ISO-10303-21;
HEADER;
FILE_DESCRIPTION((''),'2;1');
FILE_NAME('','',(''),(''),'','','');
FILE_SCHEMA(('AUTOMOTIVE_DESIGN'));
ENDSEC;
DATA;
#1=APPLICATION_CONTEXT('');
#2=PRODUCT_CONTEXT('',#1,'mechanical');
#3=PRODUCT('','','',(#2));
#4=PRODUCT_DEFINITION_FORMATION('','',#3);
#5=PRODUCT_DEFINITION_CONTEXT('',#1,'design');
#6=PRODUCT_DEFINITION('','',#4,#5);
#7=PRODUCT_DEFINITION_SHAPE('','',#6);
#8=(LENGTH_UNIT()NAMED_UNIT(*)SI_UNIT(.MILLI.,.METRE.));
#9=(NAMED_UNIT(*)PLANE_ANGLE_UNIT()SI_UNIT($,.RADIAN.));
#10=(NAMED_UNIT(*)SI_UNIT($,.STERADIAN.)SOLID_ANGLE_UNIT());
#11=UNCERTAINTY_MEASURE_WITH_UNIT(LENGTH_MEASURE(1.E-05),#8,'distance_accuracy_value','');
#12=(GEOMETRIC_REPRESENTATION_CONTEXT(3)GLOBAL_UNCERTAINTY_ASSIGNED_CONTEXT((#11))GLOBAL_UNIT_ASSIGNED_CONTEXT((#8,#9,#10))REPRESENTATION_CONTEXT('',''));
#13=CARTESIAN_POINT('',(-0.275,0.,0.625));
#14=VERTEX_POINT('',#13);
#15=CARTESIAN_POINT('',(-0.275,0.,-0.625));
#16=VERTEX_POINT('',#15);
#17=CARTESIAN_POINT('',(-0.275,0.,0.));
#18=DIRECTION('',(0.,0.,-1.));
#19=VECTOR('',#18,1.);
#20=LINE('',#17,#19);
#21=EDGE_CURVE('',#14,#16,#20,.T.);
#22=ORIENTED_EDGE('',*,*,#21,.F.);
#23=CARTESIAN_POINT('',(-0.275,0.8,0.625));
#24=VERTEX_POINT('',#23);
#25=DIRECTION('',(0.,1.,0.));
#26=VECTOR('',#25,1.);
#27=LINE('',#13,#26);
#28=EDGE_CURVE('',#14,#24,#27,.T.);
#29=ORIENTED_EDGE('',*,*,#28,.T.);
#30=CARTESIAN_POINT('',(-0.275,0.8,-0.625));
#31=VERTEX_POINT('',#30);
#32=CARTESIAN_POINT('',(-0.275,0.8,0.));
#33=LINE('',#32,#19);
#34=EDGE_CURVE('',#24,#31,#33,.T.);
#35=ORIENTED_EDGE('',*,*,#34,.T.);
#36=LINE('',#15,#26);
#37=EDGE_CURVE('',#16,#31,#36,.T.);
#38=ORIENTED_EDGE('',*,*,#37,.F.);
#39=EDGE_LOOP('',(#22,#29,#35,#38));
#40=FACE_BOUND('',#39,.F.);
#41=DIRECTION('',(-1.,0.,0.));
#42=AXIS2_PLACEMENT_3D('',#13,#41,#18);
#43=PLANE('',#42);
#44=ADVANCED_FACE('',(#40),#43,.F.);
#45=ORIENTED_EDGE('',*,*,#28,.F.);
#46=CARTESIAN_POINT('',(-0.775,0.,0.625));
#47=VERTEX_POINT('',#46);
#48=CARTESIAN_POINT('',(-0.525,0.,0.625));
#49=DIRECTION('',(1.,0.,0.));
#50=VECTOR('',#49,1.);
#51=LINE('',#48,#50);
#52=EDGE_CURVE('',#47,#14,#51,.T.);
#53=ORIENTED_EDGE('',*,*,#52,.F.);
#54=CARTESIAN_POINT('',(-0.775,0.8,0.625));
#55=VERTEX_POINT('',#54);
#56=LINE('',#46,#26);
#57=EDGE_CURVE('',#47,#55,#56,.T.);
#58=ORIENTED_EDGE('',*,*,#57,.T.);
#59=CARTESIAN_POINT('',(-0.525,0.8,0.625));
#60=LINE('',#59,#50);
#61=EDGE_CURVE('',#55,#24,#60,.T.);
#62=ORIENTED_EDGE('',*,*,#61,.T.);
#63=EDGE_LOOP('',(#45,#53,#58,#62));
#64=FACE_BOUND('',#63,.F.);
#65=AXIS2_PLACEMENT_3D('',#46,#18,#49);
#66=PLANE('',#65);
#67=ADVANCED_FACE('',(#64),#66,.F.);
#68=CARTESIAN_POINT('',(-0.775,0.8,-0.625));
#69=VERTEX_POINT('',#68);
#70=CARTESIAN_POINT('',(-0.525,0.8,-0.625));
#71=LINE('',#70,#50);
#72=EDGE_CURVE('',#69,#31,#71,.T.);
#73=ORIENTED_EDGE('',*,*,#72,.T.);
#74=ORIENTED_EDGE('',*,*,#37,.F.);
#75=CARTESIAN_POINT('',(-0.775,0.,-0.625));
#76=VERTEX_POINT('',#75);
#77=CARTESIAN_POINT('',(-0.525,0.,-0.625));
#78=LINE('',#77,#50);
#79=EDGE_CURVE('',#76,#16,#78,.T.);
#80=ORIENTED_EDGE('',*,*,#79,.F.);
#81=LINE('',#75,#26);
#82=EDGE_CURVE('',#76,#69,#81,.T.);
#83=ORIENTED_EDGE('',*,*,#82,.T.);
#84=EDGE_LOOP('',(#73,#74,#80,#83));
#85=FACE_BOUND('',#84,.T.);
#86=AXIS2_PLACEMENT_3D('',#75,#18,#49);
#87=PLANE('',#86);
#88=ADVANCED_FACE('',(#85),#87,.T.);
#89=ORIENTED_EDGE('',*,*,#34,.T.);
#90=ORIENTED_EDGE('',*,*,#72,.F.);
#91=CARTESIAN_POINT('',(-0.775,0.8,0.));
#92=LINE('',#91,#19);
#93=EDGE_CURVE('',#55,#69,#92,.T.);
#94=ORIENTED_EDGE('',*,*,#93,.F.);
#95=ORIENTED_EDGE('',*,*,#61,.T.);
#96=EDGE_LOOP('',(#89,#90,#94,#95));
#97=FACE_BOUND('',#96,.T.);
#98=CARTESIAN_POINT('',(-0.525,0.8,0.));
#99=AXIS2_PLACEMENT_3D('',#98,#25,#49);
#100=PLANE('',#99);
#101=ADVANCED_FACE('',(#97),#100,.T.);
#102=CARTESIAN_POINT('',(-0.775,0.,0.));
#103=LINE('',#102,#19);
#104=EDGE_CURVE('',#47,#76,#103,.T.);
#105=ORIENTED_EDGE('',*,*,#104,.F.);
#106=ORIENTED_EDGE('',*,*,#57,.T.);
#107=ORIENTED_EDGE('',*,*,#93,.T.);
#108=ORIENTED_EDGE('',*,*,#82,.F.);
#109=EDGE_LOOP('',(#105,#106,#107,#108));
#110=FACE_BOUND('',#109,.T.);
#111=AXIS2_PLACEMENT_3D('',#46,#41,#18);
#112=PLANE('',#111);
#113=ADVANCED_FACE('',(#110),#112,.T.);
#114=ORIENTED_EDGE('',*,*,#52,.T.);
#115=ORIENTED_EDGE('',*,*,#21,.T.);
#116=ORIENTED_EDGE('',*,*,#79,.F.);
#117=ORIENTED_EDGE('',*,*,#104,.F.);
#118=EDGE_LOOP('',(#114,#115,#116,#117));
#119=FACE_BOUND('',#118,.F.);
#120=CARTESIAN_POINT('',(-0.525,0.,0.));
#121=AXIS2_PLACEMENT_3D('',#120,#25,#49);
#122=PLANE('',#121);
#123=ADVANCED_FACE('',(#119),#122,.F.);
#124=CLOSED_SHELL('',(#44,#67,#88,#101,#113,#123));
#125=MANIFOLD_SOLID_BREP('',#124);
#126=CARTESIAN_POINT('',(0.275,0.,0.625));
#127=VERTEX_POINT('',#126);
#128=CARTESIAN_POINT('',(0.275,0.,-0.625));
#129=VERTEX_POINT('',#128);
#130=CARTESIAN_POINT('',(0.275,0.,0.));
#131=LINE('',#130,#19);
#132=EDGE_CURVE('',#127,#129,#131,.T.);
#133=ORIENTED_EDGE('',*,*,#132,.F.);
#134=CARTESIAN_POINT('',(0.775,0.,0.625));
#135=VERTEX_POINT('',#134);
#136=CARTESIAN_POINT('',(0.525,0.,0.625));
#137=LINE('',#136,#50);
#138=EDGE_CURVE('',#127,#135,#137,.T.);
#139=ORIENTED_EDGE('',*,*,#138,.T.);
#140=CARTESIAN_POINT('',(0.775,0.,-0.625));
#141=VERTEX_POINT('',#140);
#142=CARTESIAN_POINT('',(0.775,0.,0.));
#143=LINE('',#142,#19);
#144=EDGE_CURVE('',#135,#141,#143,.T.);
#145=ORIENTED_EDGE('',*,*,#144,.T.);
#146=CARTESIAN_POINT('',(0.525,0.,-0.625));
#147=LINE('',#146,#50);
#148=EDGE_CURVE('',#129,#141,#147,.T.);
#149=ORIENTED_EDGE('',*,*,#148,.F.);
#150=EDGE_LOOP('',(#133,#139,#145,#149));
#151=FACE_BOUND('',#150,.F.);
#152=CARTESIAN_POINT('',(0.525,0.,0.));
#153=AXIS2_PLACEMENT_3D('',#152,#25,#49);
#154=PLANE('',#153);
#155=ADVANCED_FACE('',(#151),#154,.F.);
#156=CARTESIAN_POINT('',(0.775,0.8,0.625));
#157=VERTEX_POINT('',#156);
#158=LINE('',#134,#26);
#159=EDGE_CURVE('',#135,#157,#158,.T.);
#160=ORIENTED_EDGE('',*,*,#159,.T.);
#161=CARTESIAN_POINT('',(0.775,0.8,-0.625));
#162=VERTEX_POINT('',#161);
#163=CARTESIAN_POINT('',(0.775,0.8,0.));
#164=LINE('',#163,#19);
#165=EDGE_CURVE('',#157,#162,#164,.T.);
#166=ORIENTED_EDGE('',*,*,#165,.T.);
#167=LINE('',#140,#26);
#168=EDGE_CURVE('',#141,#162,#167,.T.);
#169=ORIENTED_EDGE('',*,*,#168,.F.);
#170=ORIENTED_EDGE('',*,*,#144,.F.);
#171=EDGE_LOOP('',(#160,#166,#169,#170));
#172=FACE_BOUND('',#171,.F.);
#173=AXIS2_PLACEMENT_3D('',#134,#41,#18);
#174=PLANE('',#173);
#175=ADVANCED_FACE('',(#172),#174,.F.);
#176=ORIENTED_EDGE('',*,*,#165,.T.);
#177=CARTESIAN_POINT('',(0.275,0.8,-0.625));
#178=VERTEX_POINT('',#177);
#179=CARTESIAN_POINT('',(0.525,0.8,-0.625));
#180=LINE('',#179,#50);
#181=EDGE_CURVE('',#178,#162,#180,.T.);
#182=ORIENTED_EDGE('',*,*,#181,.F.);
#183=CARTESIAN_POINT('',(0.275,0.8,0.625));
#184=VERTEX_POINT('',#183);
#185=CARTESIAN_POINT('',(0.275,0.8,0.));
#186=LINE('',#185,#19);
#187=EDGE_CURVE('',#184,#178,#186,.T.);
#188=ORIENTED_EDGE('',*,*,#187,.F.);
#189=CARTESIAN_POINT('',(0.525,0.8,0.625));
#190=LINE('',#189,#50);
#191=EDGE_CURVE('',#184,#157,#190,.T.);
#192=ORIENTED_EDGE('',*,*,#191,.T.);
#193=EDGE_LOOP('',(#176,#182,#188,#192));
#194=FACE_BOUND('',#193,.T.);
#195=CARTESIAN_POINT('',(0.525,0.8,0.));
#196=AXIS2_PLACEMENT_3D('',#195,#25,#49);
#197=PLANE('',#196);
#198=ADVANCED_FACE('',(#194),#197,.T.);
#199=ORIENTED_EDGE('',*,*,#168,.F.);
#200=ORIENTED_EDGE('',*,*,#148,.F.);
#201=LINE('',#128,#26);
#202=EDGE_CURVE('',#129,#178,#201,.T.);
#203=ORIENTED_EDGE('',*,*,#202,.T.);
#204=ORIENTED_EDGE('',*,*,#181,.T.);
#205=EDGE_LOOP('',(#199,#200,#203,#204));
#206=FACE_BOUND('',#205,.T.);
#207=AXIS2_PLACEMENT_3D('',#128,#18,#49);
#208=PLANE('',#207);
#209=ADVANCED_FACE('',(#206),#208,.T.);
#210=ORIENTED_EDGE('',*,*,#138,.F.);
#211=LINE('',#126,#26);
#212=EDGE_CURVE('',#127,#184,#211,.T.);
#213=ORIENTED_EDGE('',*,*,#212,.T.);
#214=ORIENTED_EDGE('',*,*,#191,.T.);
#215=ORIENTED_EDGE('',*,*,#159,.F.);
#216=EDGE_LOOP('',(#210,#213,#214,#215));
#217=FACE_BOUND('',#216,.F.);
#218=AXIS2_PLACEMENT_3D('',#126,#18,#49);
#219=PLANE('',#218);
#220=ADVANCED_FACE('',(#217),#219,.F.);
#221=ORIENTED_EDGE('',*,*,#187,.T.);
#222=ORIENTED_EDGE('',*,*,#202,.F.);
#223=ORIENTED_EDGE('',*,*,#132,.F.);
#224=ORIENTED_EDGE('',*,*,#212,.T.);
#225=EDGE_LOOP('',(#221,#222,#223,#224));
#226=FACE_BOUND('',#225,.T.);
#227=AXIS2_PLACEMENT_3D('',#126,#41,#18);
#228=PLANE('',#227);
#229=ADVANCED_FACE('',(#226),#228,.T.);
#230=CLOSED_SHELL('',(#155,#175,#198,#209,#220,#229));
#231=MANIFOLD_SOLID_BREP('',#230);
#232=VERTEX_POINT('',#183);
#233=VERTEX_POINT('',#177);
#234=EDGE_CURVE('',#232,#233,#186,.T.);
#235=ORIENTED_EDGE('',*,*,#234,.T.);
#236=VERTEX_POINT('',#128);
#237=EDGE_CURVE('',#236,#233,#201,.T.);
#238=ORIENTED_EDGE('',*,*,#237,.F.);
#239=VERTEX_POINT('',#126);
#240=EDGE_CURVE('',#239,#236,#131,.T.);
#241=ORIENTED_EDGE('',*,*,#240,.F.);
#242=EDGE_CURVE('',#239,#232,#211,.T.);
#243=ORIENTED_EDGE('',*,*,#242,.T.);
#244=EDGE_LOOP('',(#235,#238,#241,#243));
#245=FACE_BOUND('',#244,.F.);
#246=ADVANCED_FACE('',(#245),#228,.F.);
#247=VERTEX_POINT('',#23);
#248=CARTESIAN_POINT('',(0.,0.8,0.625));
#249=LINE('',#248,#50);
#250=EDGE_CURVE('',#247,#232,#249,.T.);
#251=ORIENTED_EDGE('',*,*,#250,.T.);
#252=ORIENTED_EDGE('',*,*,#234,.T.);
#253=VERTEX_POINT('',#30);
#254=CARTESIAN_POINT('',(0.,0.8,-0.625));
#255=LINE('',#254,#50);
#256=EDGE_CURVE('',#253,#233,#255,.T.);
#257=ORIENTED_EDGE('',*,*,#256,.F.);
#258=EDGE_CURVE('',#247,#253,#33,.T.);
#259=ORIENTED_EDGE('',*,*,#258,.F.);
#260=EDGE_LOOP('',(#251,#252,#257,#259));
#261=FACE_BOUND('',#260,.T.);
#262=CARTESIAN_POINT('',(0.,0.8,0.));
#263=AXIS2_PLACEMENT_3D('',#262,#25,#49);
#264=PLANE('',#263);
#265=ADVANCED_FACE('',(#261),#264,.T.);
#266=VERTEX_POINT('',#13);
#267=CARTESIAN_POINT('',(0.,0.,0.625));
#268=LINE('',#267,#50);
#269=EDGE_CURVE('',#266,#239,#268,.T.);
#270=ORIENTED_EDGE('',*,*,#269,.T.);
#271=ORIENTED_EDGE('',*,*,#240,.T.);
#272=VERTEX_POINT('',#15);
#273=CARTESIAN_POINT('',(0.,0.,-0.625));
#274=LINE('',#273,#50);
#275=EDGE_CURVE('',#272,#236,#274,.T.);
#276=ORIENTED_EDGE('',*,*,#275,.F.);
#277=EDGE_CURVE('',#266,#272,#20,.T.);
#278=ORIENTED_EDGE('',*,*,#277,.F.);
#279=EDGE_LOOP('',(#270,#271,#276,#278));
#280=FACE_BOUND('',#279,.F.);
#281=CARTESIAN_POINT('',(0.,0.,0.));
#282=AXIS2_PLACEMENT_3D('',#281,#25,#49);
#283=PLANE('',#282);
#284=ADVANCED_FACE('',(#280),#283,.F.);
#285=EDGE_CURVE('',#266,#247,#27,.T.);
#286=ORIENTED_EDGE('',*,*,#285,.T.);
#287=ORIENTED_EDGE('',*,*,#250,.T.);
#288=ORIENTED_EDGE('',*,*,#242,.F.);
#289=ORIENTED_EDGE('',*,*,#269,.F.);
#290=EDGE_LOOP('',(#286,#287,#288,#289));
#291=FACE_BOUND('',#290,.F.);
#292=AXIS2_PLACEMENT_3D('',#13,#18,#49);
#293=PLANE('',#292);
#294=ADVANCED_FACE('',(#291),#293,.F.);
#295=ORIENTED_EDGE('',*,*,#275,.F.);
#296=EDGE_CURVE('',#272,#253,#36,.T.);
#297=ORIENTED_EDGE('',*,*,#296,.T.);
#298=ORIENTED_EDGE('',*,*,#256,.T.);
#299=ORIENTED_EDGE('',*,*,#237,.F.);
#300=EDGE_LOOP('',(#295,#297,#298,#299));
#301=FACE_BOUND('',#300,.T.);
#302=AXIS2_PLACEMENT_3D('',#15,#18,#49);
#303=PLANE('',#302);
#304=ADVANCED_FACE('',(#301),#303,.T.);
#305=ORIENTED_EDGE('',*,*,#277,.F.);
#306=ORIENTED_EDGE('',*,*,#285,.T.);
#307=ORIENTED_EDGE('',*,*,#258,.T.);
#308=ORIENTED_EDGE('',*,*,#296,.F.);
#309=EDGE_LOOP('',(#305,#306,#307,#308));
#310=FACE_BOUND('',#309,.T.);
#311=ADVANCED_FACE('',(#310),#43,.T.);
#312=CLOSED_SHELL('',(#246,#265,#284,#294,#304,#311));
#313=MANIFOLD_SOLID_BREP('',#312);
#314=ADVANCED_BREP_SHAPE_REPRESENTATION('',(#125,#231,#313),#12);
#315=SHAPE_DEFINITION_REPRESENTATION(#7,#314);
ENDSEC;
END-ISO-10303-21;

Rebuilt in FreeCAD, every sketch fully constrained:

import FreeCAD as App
import Part
import Sketcher

V = App.Vector


def add_polygon(sketch, points):
    """Adds a closed chain of lines whose ends are joined by coincident constraints."""
    first, n = sketch.GeometryCount, len(points)
    for a, b in zip(points, points[1:] + points[:1]):
        sketch.addGeometry(Part.LineSegment(App.Vector(*a, 0), App.Vector(*b, 0)), False)
    for i in range(n):
        sketch.addConstraint(Sketcher.Constraint("Coincident", first + i, 2, first + (i + 1) % n, 1))

doc = App.newDocument("Part")
body = doc.addObject("PartDesign::Body", "Body")

# Sketch on XZ plane
sketch1 = doc.addObject("Sketcher::SketchObject", "Sketch")
body.addObject(sketch1)
sketch1.AttachmentSupport = (doc.XZ_Plane, [""])
sketch1.MapMode = "FlatFace"
add_polygon(sketch1, [(-0.275, -0.625), (-0.275, 0.625), (0.275, 0.625), (0.275, -0.625)])  # lines 0-3
sketch1.addConstraint([
    Sketcher.Constraint("Vertical", 0),
    Sketcher.Constraint("Horizontal", 1),
    Sketcher.Constraint("Vertical", 2),
    Sketcher.Constraint("Horizontal", 3),
    Sketcher.Constraint("Symmetric", 0, 2, 2, 2, -1, 1),
    Sketcher.Constraint("DistanceX", 1, 1, 1, 2, 0.55),
    Sketcher.Constraint("DistanceY", 0, 1, 0, 2, 1.25),
])
pad1 = doc.addObject("PartDesign::Pad", "Pad")
body.addObject(pad1)
pad1.Profile = sketch1
pad1.Length = 0.8
pad1.Reversed = True
body2 = doc.addObject("PartDesign::Body", "Body001")

# Sketch on XZ plane
sketch2 = doc.addObject("Sketcher::SketchObject", "Sketch001")
body2.addObject(sketch2)
sketch2.AttachmentSupport = (doc.getObject("XZ_Plane001"), [""])
sketch2.MapMode = "FlatFace"
add_polygon(sketch2, [(-0.775, -0.625), (-0.775, 0.625), (-0.275, 0.625), (-0.275, -0.625)])  # lines 0-3
sketch2.addConstraint([
    Sketcher.Constraint("Vertical", 0),
    Sketcher.Constraint("Horizontal", 1),
    Sketcher.Constraint("Vertical", 2),
    Sketcher.Constraint("Horizontal", 3),
    Sketcher.Constraint("DistanceX", 1, 1, 1, 2, 0.5),
    Sketcher.Constraint("DistanceY", 0, 1, 0, 2, 1.25),
    Sketcher.Constraint("DistanceX", 0, 2, -1, 1, 0.775),
    Sketcher.Constraint("DistanceY", -1, 1, 0, 2, 0.625),
])
pad2 = doc.addObject("PartDesign::Pad", "Pad001")
body2.addObject(pad2)
pad2.Profile = sketch2
pad2.Length = 0.8
pad2.Reversed = True
body3 = doc.addObject("PartDesign::Body", "Body002")

# Sketch on XZ plane
sketch3 = doc.addObject("Sketcher::SketchObject", "Sketch002")
body3.addObject(sketch3)
sketch3.AttachmentSupport = (doc.getObject("XZ_Plane002"), [""])
sketch3.MapMode = "FlatFace"
add_polygon(sketch3, [(0.275, -0.625), (0.275, 0.625), (0.775, 0.625), (0.775, -0.625)])  # lines 0-3
sketch3.addConstraint([
    Sketcher.Constraint("Vertical", 0),
    Sketcher.Constraint("Horizontal", 1),
    Sketcher.Constraint("Vertical", 2),
    Sketcher.Constraint("Horizontal", 3),
    Sketcher.Constraint("DistanceX", 1, 1, 1, 2, 0.5),
    Sketcher.Constraint("DistanceY", 0, 1, 0, 2, 1.25),
    Sketcher.Constraint("DistanceX", -1, 1, 0, 2, 0.275),
    Sketcher.Constraint("DistanceY", -1, 1, 0, 2, 0.625),
])
pad3 = doc.addObject("PartDesign::Pad", "Pad002")
body3.addObject(pad3)
pad3.Profile = sketch3
pad3.Length = 0.8
pad3.Reversed = True

doc.recompute()
